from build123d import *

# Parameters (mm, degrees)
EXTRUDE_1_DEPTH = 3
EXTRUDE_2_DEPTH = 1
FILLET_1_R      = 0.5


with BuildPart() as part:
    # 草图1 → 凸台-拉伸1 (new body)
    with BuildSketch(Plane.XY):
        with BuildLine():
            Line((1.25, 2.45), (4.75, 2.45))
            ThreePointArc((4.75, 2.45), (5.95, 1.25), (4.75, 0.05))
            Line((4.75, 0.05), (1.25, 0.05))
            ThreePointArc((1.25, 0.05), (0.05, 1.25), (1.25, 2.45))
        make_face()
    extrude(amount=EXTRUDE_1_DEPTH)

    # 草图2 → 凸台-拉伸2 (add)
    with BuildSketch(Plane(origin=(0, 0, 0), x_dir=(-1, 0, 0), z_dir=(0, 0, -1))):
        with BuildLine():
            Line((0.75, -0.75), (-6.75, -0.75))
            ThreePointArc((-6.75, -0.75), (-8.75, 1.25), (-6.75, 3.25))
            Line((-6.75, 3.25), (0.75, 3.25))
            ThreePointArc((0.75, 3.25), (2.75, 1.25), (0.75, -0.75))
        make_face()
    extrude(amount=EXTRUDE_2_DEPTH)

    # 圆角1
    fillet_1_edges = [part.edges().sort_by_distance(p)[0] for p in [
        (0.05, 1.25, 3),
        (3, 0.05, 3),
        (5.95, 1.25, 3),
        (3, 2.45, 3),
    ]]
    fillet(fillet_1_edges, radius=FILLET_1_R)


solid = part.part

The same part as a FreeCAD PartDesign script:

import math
import FreeCAD as App
import Part
import Sketcher

V = App.Vector


def edges_at(feature, points):
    """Names of the edges that pass closest to the given points."""
    edges = feature.Shape.Edges
    near = lambda p: min(range(len(edges)), key=lambda i: edges[i].distToShape(Part.Vertex(*p))[0])
    return sorted({f"Edge{near(p) + 1}" for p in points})

doc = App.newDocument("Part")
body = doc.addObject("PartDesign::Body", "Body")

sketch1 = body.newObject("Sketcher::SketchObject", "Sketch")
sketch1.AttachmentSupport = (doc.getObject("XY_Plane"), [""])
sketch1.MapMode = "FlatFace"
sketch1.addGeometry([
    Part.LineSegment(V(4.8, 2.5, 0), V(1.2, 2.5, 0)),
    Part.ArcOfCircle(Part.Circle(V(1.2, 1.2, 0), V(0, 0, 1), 1.2), math.radians(90), math.radians(270)),
    Part.LineSegment(V(1.2, 0.1, 0), V(4.8, 0.1, 0)),
    Part.ArcOfCircle(Part.Circle(V(4.8, 1.2, 0), V(0, 0, 1), 1.2), math.radians(-90), math.radians(90)),
], False)
sketch1.addConstraint([
    Sketcher.Constraint("Tangent", 0, 2, 1, 1),
    Sketcher.Constraint("Tangent", 1, 2, 2, 1),
    Sketcher.Constraint("Tangent", 2, 2, 3, 1),
    Sketcher.Constraint("Tangent", 3, 2, 0, 1),
    Sketcher.Constraint("Horizontal", 0),
    Sketcher.Constraint("Horizontal", 2),
    Sketcher.Constraint("Radius", 1, 1.2),
    Sketcher.Constraint("DistanceX", 0, 2, 0, 1, 3.5),
    Sketcher.Constraint("DistanceX", -1, 1, 1, 3, 1.25),
    Sketcher.Constraint("DistanceY", -1, 1, 1, 3, 1.25),
])
pad1 = body.newObject("PartDesign::Pad", "Pad")
pad1.Profile = sketch1
pad1.Length = 3

sketch2 = body.newObject("Sketcher::SketchObject", "Sketch001")
sketch2.AttachmentSupport = (doc.getObject("XY_Plane"), [""])
sketch2.MapMode = "FlatFace"
sketch2.addGeometry([
    Part.LineSegment(V(6.8, -0.8, 0), V(-0.8, -0.8, 0)),
    Part.ArcOfCircle(Part.Circle(V(-0.8, 1.2, 0), V(0, 0, 1), 2), math.radians(90), math.radians(270)),
    Part.LineSegment(V(-0.8, 3.2, 0), V(6.8, 3.2, 0)),
    Part.ArcOfCircle(Part.Circle(V(6.8, 1.2, 0), V(0, 0, 1), 2), math.radians(-90), math.radians(90)),
], False)
sketch2.addConstraint([
    Sketcher.Constraint("Tangent", 0, 2, 1, 2),
    Sketcher.Constraint("Tangent", 1, 1, 2, 1),
    Sketcher.Constraint("Tangent", 2, 2, 3, 2),
    Sketcher.Constraint("Tangent", 3, 1, 0, 1),
    Sketcher.Constraint("Horizontal", 0),
    Sketcher.Constraint("Horizontal", 2),
    Sketcher.Constraint("Radius", 1, 2.0),
    Sketcher.Constraint("DistanceX", 0, 2, 0, 1, 7.5),
    Sketcher.Constraint("DistanceX", 1, 3, -1, 1, 0.75),
    Sketcher.Constraint("DistanceY", -1, 1, 1, 3, 1.25),
])
pad2 = body.newObject("PartDesign::Pad", "Pad001")
pad2.Profile = sketch2
pad2.Length = 1
pad2.Reversed = True
doc.recompute()

fillet = body.newObject("PartDesign::Fillet", "Fillet")
fillet.Base = (pad2, edges_at(pad2, [
    (0.05, 1.25, 3),
    (3, 0.05, 3),
    (5.95, 1.25, 3),
    (3, 2.45, 3),
]))
fillet.Radius = 0.5

doc.recompute()
